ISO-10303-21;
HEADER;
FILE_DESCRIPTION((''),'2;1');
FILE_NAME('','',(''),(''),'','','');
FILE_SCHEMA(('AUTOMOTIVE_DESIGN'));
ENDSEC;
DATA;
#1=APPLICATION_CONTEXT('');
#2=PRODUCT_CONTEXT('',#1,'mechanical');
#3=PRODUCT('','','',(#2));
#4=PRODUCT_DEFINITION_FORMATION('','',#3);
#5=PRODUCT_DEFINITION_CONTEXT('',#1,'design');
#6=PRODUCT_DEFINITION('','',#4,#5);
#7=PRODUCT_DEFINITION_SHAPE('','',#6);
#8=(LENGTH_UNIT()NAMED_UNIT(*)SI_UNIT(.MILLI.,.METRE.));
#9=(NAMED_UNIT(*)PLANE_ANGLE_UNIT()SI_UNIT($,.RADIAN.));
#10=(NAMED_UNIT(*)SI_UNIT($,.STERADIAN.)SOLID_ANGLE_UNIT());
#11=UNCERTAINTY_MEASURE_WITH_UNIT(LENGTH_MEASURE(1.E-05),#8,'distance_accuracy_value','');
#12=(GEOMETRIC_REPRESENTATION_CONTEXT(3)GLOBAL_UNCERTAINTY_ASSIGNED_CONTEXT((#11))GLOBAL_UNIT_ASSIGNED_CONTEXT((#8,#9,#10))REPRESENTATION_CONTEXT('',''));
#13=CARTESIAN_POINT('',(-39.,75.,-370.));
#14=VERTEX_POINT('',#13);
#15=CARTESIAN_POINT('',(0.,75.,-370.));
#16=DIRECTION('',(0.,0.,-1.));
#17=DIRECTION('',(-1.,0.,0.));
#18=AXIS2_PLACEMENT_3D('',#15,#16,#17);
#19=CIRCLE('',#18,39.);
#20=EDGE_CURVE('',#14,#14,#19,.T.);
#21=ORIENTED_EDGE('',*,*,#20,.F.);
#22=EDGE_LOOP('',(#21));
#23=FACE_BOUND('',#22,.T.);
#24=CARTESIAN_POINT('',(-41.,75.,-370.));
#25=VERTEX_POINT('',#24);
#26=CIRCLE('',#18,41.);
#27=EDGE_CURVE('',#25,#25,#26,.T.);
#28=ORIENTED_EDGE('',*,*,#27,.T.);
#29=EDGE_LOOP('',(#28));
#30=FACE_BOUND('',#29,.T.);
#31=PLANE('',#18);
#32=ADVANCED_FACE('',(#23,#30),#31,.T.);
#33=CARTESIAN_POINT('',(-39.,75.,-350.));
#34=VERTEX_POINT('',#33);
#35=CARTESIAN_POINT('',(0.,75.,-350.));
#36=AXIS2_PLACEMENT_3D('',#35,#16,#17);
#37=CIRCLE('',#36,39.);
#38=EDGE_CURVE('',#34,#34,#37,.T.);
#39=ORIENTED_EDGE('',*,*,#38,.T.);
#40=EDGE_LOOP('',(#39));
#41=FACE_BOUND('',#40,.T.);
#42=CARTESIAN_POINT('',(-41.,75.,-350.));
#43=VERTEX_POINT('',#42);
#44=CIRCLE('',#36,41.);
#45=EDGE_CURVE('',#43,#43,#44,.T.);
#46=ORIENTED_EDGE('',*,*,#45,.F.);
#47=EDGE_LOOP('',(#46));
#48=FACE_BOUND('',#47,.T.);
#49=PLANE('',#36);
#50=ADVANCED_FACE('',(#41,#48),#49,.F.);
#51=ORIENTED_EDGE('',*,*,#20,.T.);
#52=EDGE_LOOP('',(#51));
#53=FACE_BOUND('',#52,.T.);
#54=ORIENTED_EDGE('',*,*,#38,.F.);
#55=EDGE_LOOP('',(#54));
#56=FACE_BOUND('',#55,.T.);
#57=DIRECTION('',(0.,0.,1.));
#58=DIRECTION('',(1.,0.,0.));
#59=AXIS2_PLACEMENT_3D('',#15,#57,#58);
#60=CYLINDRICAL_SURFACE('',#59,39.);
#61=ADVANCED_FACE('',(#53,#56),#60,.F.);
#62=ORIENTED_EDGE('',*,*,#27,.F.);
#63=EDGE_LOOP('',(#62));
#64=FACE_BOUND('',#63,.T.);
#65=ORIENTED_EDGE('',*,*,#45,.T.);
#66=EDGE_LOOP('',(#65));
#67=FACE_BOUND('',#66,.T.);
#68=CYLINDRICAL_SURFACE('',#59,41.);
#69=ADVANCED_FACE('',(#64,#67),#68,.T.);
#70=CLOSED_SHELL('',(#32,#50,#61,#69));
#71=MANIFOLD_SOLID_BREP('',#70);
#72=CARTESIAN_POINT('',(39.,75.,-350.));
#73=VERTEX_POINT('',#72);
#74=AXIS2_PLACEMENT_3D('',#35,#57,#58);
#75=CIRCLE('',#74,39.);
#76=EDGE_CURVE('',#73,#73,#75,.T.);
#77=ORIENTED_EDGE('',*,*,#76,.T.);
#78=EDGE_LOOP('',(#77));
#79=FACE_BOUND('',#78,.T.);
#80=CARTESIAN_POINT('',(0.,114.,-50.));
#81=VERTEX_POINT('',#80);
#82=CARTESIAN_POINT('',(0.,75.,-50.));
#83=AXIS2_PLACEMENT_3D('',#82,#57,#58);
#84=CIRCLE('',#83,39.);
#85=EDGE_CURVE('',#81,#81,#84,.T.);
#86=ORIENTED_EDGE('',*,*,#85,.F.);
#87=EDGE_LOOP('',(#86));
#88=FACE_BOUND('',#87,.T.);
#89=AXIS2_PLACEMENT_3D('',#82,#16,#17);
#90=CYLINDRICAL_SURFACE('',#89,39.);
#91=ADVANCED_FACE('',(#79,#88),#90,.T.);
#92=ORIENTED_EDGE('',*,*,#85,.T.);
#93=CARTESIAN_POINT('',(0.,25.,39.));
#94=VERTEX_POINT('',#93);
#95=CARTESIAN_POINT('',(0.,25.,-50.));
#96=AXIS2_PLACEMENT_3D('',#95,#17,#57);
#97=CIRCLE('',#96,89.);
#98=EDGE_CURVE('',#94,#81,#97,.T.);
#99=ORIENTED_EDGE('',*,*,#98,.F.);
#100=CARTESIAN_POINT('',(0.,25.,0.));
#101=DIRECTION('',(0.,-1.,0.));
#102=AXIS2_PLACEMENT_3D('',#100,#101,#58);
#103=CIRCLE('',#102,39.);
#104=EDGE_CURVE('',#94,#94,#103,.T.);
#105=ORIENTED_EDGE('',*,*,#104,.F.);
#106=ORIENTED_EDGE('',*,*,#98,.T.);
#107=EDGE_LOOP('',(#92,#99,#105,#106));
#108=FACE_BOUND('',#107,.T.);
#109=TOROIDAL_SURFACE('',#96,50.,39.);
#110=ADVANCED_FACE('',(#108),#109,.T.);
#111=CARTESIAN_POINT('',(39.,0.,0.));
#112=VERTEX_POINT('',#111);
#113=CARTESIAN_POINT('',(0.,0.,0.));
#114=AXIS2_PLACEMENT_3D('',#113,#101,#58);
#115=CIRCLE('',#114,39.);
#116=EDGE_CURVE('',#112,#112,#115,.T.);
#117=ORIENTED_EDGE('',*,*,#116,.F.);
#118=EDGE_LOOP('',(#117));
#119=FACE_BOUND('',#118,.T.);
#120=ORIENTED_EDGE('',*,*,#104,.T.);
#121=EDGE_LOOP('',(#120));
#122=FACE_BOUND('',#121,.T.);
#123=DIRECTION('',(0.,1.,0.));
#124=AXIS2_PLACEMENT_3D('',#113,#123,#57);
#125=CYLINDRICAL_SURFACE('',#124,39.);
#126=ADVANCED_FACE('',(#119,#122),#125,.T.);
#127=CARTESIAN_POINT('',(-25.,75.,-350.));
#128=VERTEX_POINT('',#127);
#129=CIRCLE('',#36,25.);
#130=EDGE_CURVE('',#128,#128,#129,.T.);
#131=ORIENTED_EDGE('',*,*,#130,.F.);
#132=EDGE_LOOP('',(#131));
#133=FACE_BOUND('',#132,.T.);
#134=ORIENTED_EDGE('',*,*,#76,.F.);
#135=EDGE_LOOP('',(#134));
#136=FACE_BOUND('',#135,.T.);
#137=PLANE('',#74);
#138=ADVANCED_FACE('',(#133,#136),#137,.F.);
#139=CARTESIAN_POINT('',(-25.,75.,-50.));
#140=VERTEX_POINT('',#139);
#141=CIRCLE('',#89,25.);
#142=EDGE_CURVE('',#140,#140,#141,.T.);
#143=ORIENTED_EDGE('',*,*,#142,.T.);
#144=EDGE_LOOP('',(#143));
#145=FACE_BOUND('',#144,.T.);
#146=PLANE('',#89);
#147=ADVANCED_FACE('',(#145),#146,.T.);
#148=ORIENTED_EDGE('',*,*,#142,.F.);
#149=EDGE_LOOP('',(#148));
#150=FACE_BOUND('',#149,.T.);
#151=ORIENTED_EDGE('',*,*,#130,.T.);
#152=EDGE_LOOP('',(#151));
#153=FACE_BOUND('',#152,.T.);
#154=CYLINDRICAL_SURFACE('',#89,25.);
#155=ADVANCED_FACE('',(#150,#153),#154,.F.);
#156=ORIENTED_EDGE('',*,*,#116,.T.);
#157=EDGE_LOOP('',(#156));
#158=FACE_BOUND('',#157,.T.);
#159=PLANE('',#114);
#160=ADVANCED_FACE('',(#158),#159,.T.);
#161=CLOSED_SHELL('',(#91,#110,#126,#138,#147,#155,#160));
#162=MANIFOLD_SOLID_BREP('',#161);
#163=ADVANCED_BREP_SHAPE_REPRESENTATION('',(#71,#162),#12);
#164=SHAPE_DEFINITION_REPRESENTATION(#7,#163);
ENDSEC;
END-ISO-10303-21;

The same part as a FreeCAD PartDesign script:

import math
import FreeCAD as App
import Part
import Sketcher
Q = App.Units.Quantity

doc = App.newDocument("Part")
params = doc.addObject("Spreadsheet::Sheet", "Params")
for row, (alias, value) in enumerate([
    ("sketch1_diameter", "78 mm"),
    ("sketch2_radius", "50 mm"),
    ("sketch2_width", "25 mm"),
    ("sketch2_height", "300 mm"),
    ("sketch3_diameter", "50 mm"),
    ("pocket1_length", "300 mm"),
    ("sketch4_diameter", "82 mm"),
    ("sketch4_diameter2", "78 mm"),
    ("pad1_length", "20 mm"),
], start=1):
    params.set(f"A{row}", alias)
    params.set(f"B{row}", "=" + value)
    params.setAlias(f"B{row}", alias)

body = doc.addObject("PartDesign::Body", "Body")

sketch1 = body.newObject("Sketcher::SketchObject", "Sketch")
sketch1.AttachmentSupport = (doc.getObject("XZ_Plane"), [""])
sketch1.MapMode = "FlatFace"
sketch1.addGeometry(Part.Circle(App.Vector(0, 0, 0), App.Vector(0, 0, 1), 39), False)
sketch1.addConstraint([
    Sketcher.Constraint("Coincident", 0, 3, -1, 1),
    Sketcher.Constraint("Diameter", 0, Q("78 mm")),
])
sketch1.setExpression("Constraints[1]", "Params.sketch1_diameter")

sketch2 = body.newObject("Sketcher::SketchObject", "Sketch001")
sketch2.AttachmentSupport = (doc.getObject("YZ_Plane"), [""])
sketch2.MapMode = "FlatFace"
sketch2.addGeometry([
    Part.LineSegment(App.Vector(0, 0, 0), App.Vector(25, 0, 0)),
    Part.ArcOfCircle(Part.Circle(App.Vector(25, -50, 0), App.Vector(0, 0, 1), 50), math.radians(0), math.radians(90)),
    Part.LineSegment(App.Vector(75, -50, 0), App.Vector(75, -350, 0)),
], False)
sketch2.addConstraint([
    Sketcher.Constraint("Tangent", 0, 2, 1, 2),
    Sketcher.Constraint("Tangent", 1, 1, 2, 1),
    Sketcher.Constraint("Horizontal", 0),
    Sketcher.Constraint("Vertical", 2),
    Sketcher.Constraint("Coincident", 0, 1, -1, 1),
    Sketcher.Constraint("Radius", 1, Q("50 mm")),
    Sketcher.Constraint("DistanceX", 0, 1, 0, 2, Q("25 mm")),
    Sketcher.Constraint("DistanceY", 2, 2, 2, 1, Q("300 mm")),
])
sketch2.setExpression("Constraints[5]", "Params.sketch2_radius")
sketch2.setExpression("Constraints[6]", "Params.sketch2_width")
sketch2.setExpression("Constraints[7]", "Params.sketch2_height")
doc.recompute()

additivepipe = body.newObject("PartDesign::AdditivePipe", "AdditivePipe")
additivepipe.Profile = sketch1
additivepipe.Spine = (sketch2, ["Edge1", "Edge2", "Edge3"])

sketch3 = body.newObject("Sketcher::SketchObject", "Sketch002")
sketch3.AttachmentSupport = (doc.getObject("XY_Plane"), [""])
sketch3.MapMode = "FlatFace"
sketch3.AttachmentOffset = App.Placement(App.Vector(0, 0, -350), App.Rotation())
sketch3.addGeometry(Part.Circle(App.Vector(0, 75, 0), App.Vector(0, 0, 1), 25), False)
sketch3.addConstraint([
    Sketcher.Constraint("PointOnObject", 0, 3, -2),
    Sketcher.Constraint("Diameter", 0, Q("50 mm")),
    Sketcher.Constraint("DistanceY", -1, 1, 0, 3, Q("75 mm")),
])
sketch3.setExpression("Constraints[1]", "Params.sketch3_diameter")
pocket1 = body.newObject("PartDesign::Pocket", "Pocket")
pocket1.Profile = sketch3
pocket1.setExpression("Length", "Params.pocket1_length")
pocket1.Reversed = True
body2 = doc.addObject("PartDesign::Body", "Body001")

sketch4 = body2.newObject("Sketcher::SketchObject", "Sketch003")
sketch4.AttachmentSupport = (doc.getObject("XY_Plane001"), [""])
sketch4.MapMode = "FlatFace"
sketch4.AttachmentOffset = App.Placement(App.Vector(0, 0, -350), App.Rotation())
sketch4.addGeometry([
    Part.Circle(App.Vector(0, 75, 0), App.Vector(0, 0, 1), 41),
    Part.Circle(App.Vector(0, 75, 0), App.Vector(0, 0, 1), 39),
], False)
sketch4.addConstraint([
    Sketcher.Constraint("Coincident", 1, 3, 0, 3),
    Sketcher.Constraint("PointOnObject", 0, 3, -2),
    Sketcher.Constraint("Diameter", 0, Q("82 mm")),
    Sketcher.Constraint("Diameter", 1, Q("78 mm")),
    Sketcher.Constraint("DistanceY", -1, 1, 0, 3, Q("75 mm")),
])
sketch4.setExpression("Constraints[2]", "Params.sketch4_diameter")
sketch4.setExpression("Constraints[3]", "Params.sketch4_diameter2")
pad1 = body2.newObject("PartDesign::Pad", "Pad")
pad1.Profile = sketch4
pad1.setExpression("Length", "Params.pad1_length")
pad1.Reversed = True

doc.recompute()
